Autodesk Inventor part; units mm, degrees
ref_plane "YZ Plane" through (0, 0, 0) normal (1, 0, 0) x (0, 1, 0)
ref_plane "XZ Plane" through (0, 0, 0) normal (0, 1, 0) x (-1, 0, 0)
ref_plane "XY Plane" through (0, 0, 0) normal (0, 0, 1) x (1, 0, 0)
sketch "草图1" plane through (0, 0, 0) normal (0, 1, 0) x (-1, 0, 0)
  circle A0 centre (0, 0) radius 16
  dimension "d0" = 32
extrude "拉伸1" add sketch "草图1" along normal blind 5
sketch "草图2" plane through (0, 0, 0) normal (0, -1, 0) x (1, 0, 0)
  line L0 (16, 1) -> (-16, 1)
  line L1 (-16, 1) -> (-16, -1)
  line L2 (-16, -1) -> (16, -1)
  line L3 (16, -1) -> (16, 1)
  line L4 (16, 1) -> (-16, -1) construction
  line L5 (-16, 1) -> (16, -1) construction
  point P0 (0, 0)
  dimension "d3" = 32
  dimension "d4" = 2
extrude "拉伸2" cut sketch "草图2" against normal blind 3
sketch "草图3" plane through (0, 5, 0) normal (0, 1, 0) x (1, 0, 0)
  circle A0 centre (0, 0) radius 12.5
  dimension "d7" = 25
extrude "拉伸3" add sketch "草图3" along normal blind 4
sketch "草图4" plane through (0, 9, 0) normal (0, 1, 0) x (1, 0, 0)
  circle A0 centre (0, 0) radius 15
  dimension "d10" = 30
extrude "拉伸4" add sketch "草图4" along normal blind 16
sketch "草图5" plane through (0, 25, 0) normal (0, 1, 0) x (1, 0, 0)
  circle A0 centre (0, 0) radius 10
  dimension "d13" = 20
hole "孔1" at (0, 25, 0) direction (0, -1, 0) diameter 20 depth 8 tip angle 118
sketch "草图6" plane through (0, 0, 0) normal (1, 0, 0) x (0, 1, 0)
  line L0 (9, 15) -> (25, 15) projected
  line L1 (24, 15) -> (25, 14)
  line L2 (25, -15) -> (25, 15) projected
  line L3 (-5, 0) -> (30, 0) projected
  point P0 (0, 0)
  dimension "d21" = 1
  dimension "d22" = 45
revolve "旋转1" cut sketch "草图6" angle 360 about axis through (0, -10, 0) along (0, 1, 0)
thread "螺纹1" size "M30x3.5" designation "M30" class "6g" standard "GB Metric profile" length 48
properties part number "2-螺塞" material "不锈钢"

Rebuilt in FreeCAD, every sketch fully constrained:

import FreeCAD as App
import Part
import Sketcher
Q = App.Units.Quantity

doc = App.newDocument("Part")
body = doc.addObject("PartDesign::Body", "Body")

sketch1 = body.newObject("Sketcher::SketchObject", "Sketch")
sketch1.AttachmentSupport = (doc.getObject("XZ_Plane"), [""])
sketch1.MapMode = "FlatFace"
sketch1.addGeometry(Part.Circle(App.Vector(0, 0, 0), App.Vector(0, 0, 1), 16), False)
sketch1.addConstraint(Sketcher.Constraint("Coincident", 0, 3, -1, 1))
sketch1.addConstraint(Sketcher.Constraint("Diameter", 0, Q("32 mm")))
pad1 = body.newObject("PartDesign::Pad", "Pad")
pad1.Profile = sketch1
pad1.Length = 5
pad1.Reversed = True

sketch2 = body.newObject("Sketcher::SketchObject", "Sketch001")
sketch2.AttachmentSupport = (doc.getObject("XZ_Plane"), [""])
sketch2.MapMode = "FlatFace"
sketch2.addGeometry(Part.LineSegment(App.Vector(16, -1, 0), App.Vector(16, 1, 0)), False)
sketch2.addGeometry(Part.LineSegment(App.Vector(16, 1, 0), App.Vector(-16, 1, 0)), False)
sketch2.addGeometry(Part.LineSegment(App.Vector(-16, 1, 0), App.Vector(-16, -1, 0)), False)
sketch2.addGeometry(Part.LineSegment(App.Vector(-16, -1, 0), App.Vector(16, -1, 0)), False)
sketch2.addConstraint(Sketcher.Constraint("Coincident", 0, 2, 1, 1))
sketch2.addConstraint(Sketcher.Constraint("Coincident", 1, 2, 2, 1))
sketch2.addConstraint(Sketcher.Constraint("Coincident", 2, 2, 3, 1))
sketch2.addConstraint(Sketcher.Constraint("Coincident", 3, 2, 0, 1))
sketch2.addConstraint(Sketcher.Constraint("Vertical", 0))
sketch2.addConstraint(Sketcher.Constraint("Horizontal", 1))
sketch2.addConstraint(Sketcher.Constraint("Vertical", 2))
sketch2.addConstraint(Sketcher.Constraint("Horizontal", 3))
sketch2.addConstraint(Sketcher.Constraint("Symmetric", 0, 2, 2, 2, -1, 1))
sketch2.addConstraint(Sketcher.Constraint("DistanceX", 1, 2, 1, 1, Q("32 mm")))
sketch2.addConstraint(Sketcher.Constraint("DistanceY", 0, 1, 0, 2, Q("2 mm")))
pocket1 = body.newObject("PartDesign::Pocket", "Pocket")
pocket1.Profile = sketch2
pocket1.Length = 3

sketch3 = body.newObject("Sketcher::SketchObject", "Sketch002")
sketch3.AttachmentSupport = (doc.getObject("XZ_Plane"), [""])
sketch3.MapMode = "FlatFace"
sketch3.AttachmentOffset = App.Placement(App.Vector(0, 0, -5), App.Rotation())
sketch3.addGeometry(Part.Circle(App.Vector(0, 0, 0), App.Vector(0, 0, 1), 12), False)
sketch3.addConstraint(Sketcher.Constraint("Coincident", 0, 3, -1, 1))
sketch3.addConstraint(Sketcher.Constraint("Diameter", 0, Q("25 mm")))
pad2 = body.newObject("PartDesign::Pad", "Pad001")
pad2.Profile = sketch3
pad2.Length = 4
pad2.Reversed = True

sketch4 = body.newObject("Sketcher::SketchObject", "Sketch003")
sketch4.AttachmentSupport = (doc.getObject("XZ_Plane"), [""])
sketch4.MapMode = "FlatFace"
sketch4.AttachmentOffset = App.Placement(App.Vector(0, 0, -9), App.Rotation())
sketch4.addGeometry(Part.Circle(App.Vector(0, 0, 0), App.Vector(0, 0, 1), 15), False)
sketch4.addConstraint(Sketcher.Constraint("Coincident", 0, 3, -1, 1))
sketch4.addConstraint(Sketcher.Constraint("Diameter", 0, Q("30 mm")))
pad3 = body.newObject("PartDesign::Pad", "Pad002")
pad3.Profile = sketch4
pad3.Length = 16
pad3.Reversed = True

sketch5 = body.newObject("Sketcher::SketchObject", "Sketch004")
sketch5.AttachmentSupport = (doc.getObject("XZ_Plane"), [""])
sketch5.MapMode = "FlatFace"
sketch5.AttachmentOffset = App.Placement(App.Vector(0, 0, -25), App.Rotation())
sketch5.addGeometry(Part.Circle(App.Vector(0, 0, 0), App.Vector(0, 0, 1), 10), False)
sketch5.addConstraint(Sketcher.Constraint("Coincident", 0, 3, -1, 1))
sketch5.addConstraint(Sketcher.Constraint("Diameter", 0, Q("20 mm")))
doc.recompute()
hole = body.newObject("PartDesign::Hole", "Hole")
hole.Profile = sketch5
hole.ThreadType = "None"
hole.Diameter = 20
hole.DepthType = "Dimension"
hole.Depth = 8
hole.DrillPoint = "Angled"
hole.DrillPointAngle = 118
hole.Reversed = True

sketch6 = body.newObject("Sketcher::SketchObject", "Sketch005")
sketch6.AttachmentSupport = (doc.getObject("YZ_Plane"), [""])
sketch6.MapMode = "FlatFace"
sketch6.addGeometry(Part.LineSegment(App.Vector(25, 15, 0), App.Vector(24, 15, 0)), False)
sketch6.addGeometry(Part.LineSegment(App.Vector(24, 15, 0), App.Vector(25, 14, 0)), False)
sketch6.addGeometry(Part.LineSegment(App.Vector(25, 14, 0), App.Vector(25, 15, 0)), False)
sketch6.addConstraint(Sketcher.Constraint("Coincident", 0, 2, 1, 1))
sketch6.addConstraint(Sketcher.Constraint("Coincident", 1, 2, 2, 1))
sketch6.addConstraint(Sketcher.Constraint("Coincident", 2, 2, 0, 1))
sketch6.addConstraint(Sketcher.Constraint("Horizontal", 0))
sketch6.addConstraint(Sketcher.Constraint("Vertical", 2))
sketch6.addConstraint(Sketcher.Constraint("Equal", 0, 2))
sketch6.addConstraint(Sketcher.Constraint("DistanceX", 0, 2, 0, 1, Q("1 mm")))
sketch6.addConstraint(Sketcher.Constraint("DistanceX", -1, 1, 0, 2, Q("24 mm")))
sketch6.addConstraint(Sketcher.Constraint("DistanceY", -1, 1, 0, 2, Q("15 mm")))
groove = body.newObject("PartDesign::Groove", "Groove")
groove.Profile = sketch6
groove.ReferenceAxis = (sketch6, ["H_Axis"])
groove.Angle = 360

doc.recompute()
